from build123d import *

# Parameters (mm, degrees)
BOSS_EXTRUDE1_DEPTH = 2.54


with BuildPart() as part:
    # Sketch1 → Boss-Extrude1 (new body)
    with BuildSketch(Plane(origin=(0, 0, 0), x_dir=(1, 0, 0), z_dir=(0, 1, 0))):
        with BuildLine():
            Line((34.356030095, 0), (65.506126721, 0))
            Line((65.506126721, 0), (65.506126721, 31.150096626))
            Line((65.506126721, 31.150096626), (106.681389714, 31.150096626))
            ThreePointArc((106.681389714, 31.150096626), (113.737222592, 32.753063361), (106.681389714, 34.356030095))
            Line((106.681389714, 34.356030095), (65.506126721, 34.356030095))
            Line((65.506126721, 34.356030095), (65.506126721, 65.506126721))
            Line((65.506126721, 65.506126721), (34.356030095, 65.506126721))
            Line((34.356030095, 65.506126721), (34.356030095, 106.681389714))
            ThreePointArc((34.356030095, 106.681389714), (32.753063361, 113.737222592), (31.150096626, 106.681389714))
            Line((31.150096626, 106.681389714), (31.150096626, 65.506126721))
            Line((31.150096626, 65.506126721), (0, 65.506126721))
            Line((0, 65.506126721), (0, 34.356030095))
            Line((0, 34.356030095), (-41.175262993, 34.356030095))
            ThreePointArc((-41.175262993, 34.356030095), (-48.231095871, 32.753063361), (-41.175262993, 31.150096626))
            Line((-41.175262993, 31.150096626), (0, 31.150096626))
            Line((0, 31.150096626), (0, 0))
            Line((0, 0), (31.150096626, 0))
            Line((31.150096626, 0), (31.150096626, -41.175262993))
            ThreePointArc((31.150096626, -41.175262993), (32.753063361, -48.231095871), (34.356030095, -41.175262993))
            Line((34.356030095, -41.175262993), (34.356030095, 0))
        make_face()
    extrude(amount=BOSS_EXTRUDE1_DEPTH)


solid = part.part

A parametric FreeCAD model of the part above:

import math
import FreeCAD as App
import Part
import Sketcher
Q = App.Units.Quantity

doc = App.newDocument("Part")
body = doc.addObject("PartDesign::Body", "Body")

sketch1 = doc.addObject("Sketcher::SketchObject", "Sketch")
body.addObject(sketch1)
sketch1.AttachmentSupport = (doc.XZ_Plane, [""])
sketch1.MapMode = "FlatFace"
sketch1.addGeometry([
    Part.LineSegment(App.Vector(34.35603, 0, 0), App.Vector(65.506127, 0, 0)),
    Part.LineSegment(App.Vector(65.506127, 0, 0), App.Vector(65.506127, -31.150097, 0)),
    Part.LineSegment(App.Vector(65.506127, -31.150097, 0), App.Vector(106.68139, -31.150097, 0)),
    Part.ArcOfCircle(Part.Circle(App.Vector(110.027223, -32.753063, 0), App.Vector(0, 0, 1), 3.71), math.radians(-154.401223), math.radians(154.401223)),
    Part.LineSegment(App.Vector(106.68139, -34.35603, 0), App.Vector(65.506127, -34.35603, 0)),
    Part.LineSegment(App.Vector(65.506127, -34.35603, 0), App.Vector(65.506127, -65.506127, 0)),
    Part.LineSegment(App.Vector(65.506127, -65.506127, 0), App.Vector(34.35603, -65.506127, 0)),
    Part.LineSegment(App.Vector(34.35603, -65.506127, 0), App.Vector(34.35603, -106.68139, 0)),
    Part.ArcOfCircle(Part.Circle(App.Vector(32.753063, -110.027223, 0), App.Vector(0, 0, 1), 3.71), math.radians(115.598777), math.radians(424.401223)),
    Part.LineSegment(App.Vector(31.150097, -106.68139, 0), App.Vector(31.150097, -65.506127, 0)),
    Part.LineSegment(App.Vector(31.150097, -65.506127, 0), App.Vector(0, -65.506127, 0)),
    Part.LineSegment(App.Vector(0, -65.506127, 0), App.Vector(0, -34.35603, 0)),
    Part.LineSegment(App.Vector(0, -34.35603, 0), App.Vector(-41.175263, -34.35603, 0)),
    Part.ArcOfCircle(Part.Circle(App.Vector(-44.521096, -32.753063, 0), App.Vector(0, 0, 1), 3.71), math.radians(25.598777), math.radians(334.401223)),
    Part.LineSegment(App.Vector(-41.175263, -31.150097, 0), App.Vector(0, -31.150097, 0)),
    Part.LineSegment(App.Vector(0, -31.150097, 0), App.Vector(0, 0, 0)),
    Part.LineSegment(App.Vector(0, 0, 0), App.Vector(31.150097, 0, 0)),
    Part.LineSegment(App.Vector(31.150097, 0, 0), App.Vector(31.150097, 41.175263, 0)),
    Part.ArcOfCircle(Part.Circle(App.Vector(32.753063, 44.521096, 0), App.Vector(0, 0, 1), 3.71), math.radians(-64.401223), math.radians(244.401223)),
    Part.LineSegment(App.Vector(34.35603, 41.175263, 0), App.Vector(34.35603, 0, 0)),
], False)
sketch1.addConstraint([
    Sketcher.Constraint("Coincident", 0, 2, 1, 1),
    Sketcher.Constraint("Coincident", 1, 2, 2, 1),
    Sketcher.Constraint("Coincident", 2, 2, 3, 2),
    Sketcher.Constraint("Coincident", 3, 1, 4, 1),
    Sketcher.Constraint("Coincident", 4, 2, 5, 1),
    Sketcher.Constraint("Coincident", 5, 2, 6, 1),
    Sketcher.Constraint("Coincident", 6, 2, 7, 1),
    Sketcher.Constraint("Coincident", 7, 2, 8, 2),
    Sketcher.Constraint("Coincident", 8, 1, 9, 1),
    Sketcher.Constraint("Coincident", 9, 2, 10, 1),
    Sketcher.Constraint("Coincident", 10, 2, 11, 1),
    Sketcher.Constraint("Coincident", 11, 2, 12, 1),
    Sketcher.Constraint("Coincident", 12, 2, 13, 2),
    Sketcher.Constraint("Coincident", 13, 1, 14, 1),
    Sketcher.Constraint("Coincident", 14, 2, 15, 1),
    Sketcher.Constraint("Coincident", 15, 2, 16, 1),
    Sketcher.Constraint("Coincident", 16, 2, 17, 1),
    Sketcher.Constraint("Coincident", 17, 2, 18, 2),
    Sketcher.Constraint("Coincident", 18, 1, 19, 1),
    Sketcher.Constraint("Coincident", 19, 2, 0, 1),
    Sketcher.Constraint("Horizontal", 0),
    Sketcher.Constraint("Vertical", 1),
    Sketcher.Constraint("Horizontal", 2),
    Sketcher.Constraint("Horizontal", 4),
    Sketcher.Constraint("Vertical", 5),
    Sketcher.Constraint("Horizontal", 6),
    Sketcher.Constraint("Vertical", 7),
    Sketcher.Constraint("Vertical", 9),
    Sketcher.Constraint("Horizontal", 10),
    Sketcher.Constraint("Vertical", 11),
    Sketcher.Constraint("Horizontal", 12),
    Sketcher.Constraint("Horizontal", 14),
    Sketcher.Constraint("Vertical", 15),
    Sketcher.Constraint("Horizontal", 16),
    Sketcher.Constraint("Vertical", 17),
    Sketcher.Constraint("Vertical", 19),
    Sketcher.Constraint("Coincident", 15, 2, -1, 1),
    Sketcher.Constraint("Equal", 3, 8),
    Sketcher.Constraint("Equal", 8, 13),
    Sketcher.Constraint("Equal", 13, 18),
    Sketcher.Constraint("PointOnObject", 0, 2, -1),
    Sketcher.Constraint("PointOnObject", 10, 2, -2),
    Sketcher.Constraint("Horizontal", 3, 3, 13, 3),
    Sketcher.Constraint("Horizontal", 7, 2, 8, 1),
    Sketcher.Constraint("Horizontal", 6, 2, 9, 2),
    Sketcher.Constraint("Horizontal", 4, 2, 11, 2),
    Sketcher.Constraint("Horizontal", 2, 2, 13, 1),
    Sketcher.Constraint("Horizontal", 17, 2, 18, 1),
    Sketcher.Constraint("Vertical", 8, 3, 18, 3),
    Sketcher.Constraint("Vertical", 2, 2, 3, 1),
    Sketcher.Constraint("Vertical", 1, 2, 4, 2),
    Sketcher.Constraint("Vertical", 9, 2, 16, 2),
    Sketcher.Constraint("Equal", 6, 10),
    Sketcher.Constraint("Equal", 4, 12),
    Sketcher.Constraint("Equal", 16, 1),
    Sketcher.Constraint("Equal", 1, 5),
    Sketcher.Constraint("Equal", 14, 7),
    Sketcher.Constraint("Equal", 9, 17),
    Sketcher.Constraint("Radius", 3, Q("3.71 mm")),
    Sketcher.Constraint("DistanceX", 0, 1, 0, 2, Q("31.150097 mm")),
    Sketcher.Constraint("DistanceX", 2, 1, 2, 2, Q("41.175263 mm")),
    Sketcher.Constraint("DistanceX", -1, 1, 2, 2, Q("106.68139 mm")),
    Sketcher.Constraint("DistanceY", 3, 1, -1, 1, Q("34.35603 mm")),
])
pad1 = doc.addObject("PartDesign::Pad", "Pad")
body.addObject(pad1)
pad1.Profile = sketch1
pad1.Length = Q("0.1 in")
pad1.Reversed = True

doc.recompute()
